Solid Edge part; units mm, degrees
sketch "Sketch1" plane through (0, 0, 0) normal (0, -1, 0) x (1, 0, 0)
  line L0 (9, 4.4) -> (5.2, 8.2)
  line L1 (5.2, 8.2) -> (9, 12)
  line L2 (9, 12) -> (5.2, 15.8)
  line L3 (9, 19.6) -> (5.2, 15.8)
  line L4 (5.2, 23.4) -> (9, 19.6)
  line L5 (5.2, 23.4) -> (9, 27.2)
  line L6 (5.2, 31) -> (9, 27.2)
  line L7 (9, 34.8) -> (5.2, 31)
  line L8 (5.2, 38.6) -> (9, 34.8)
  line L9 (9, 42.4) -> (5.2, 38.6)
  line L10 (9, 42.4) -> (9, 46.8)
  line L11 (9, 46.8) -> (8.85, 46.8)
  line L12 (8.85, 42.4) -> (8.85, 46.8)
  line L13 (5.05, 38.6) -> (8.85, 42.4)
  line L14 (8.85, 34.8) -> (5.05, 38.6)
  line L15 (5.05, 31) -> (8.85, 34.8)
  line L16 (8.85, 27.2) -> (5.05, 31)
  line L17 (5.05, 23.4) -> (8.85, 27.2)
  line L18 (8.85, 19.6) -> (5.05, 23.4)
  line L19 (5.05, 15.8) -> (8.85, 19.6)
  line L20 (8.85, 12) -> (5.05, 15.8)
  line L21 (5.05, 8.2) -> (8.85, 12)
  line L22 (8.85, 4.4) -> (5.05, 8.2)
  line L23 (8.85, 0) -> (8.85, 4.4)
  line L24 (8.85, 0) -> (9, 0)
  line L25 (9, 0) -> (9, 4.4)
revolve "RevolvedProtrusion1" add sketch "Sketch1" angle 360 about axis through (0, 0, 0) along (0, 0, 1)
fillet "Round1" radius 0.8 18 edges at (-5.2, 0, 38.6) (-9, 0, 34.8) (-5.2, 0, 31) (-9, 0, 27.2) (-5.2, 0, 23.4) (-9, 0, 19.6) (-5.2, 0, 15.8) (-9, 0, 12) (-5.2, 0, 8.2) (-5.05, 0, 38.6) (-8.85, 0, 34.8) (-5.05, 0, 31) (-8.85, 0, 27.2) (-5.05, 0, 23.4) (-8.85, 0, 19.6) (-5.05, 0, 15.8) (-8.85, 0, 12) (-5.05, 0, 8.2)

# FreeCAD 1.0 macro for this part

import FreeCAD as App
import Part
import Sketcher

V = App.Vector
Q = App.Units.Quantity


def edges_at(feature, points):
    """Names of the edges that pass closest to the given points."""
    edges = feature.Shape.Edges
    near = lambda p: min(range(len(edges)), key=lambda i: edges[i].distToShape(Part.Vertex(*p))[0])
    return sorted({f"Edge{near(p) + 1}" for p in points})

doc = App.newDocument("Part")
body = doc.addObject("PartDesign::Body", "Body")

# Sketch on XZ plane
sketch1 = body.newObject("Sketcher::SketchObject", "Sketch")
sketch1.AttachmentSupport = (doc.getObject("XZ_Plane"), [""])
sketch1.MapMode = "FlatFace"
sketch1.addGeometry(Part.LineSegment(V(9, 0, 0), V(9, 4.4, 0)), False)
sketch1.addGeometry(Part.LineSegment(V(9, 4.4, 0), V(5.2, 8.2, 0)), False)
sketch1.addGeometry(Part.LineSegment(V(5.2, 8.2, 0), V(9, 12, 0)), False)
sketch1.addGeometry(Part.LineSegment(V(9, 12, 0), V(5.2, 15.8, 0)), False)
sketch1.addGeometry(Part.LineSegment(V(5.2, 15.8, 0), V(9, 19.6, 0)), False)
sketch1.addGeometry(Part.LineSegment(V(9, 19.6, 0), V(5.2, 23.4, 0)), False)
sketch1.addGeometry(Part.LineSegment(V(5.2, 23.4, 0), V(9, 27.2, 0)), False)
sketch1.addGeometry(Part.LineSegment(V(9, 27.2, 0), V(5.2, 31, 0)), False)
sketch1.addGeometry(Part.LineSegment(V(5.2, 31, 0), V(9, 34.8, 0)), False)
sketch1.addGeometry(Part.LineSegment(V(9, 34.8, 0), V(5.2, 38.6, 0)), False)
sketch1.addGeometry(Part.LineSegment(V(5.2, 38.6, 0), V(9, 42.4, 0)), False)
sketch1.addGeometry(Part.LineSegment(V(9, 42.4, 0), V(9, 46.8, 0)), False)
sketch1.addGeometry(Part.LineSegment(V(9, 46.8, 0), V(8.85, 46.8, 0)), False)
sketch1.addGeometry(Part.LineSegment(V(8.85, 46.8, 0), V(8.85, 42.4, 0)), False)
sketch1.addGeometry(Part.LineSegment(V(8.85, 42.4, 0), V(5.05, 38.6, 0)), False)
sketch1.addGeometry(Part.LineSegment(V(5.05, 38.6, 0), V(8.85, 34.8, 0)), False)
sketch1.addGeometry(Part.LineSegment(V(8.85, 34.8, 0), V(5.05, 31, 0)), False)
sketch1.addGeometry(Part.LineSegment(V(5.05, 31, 0), V(8.85, 27.2, 0)), False)
sketch1.addGeometry(Part.LineSegment(V(8.85, 27.2, 0), V(5.05, 23.4, 0)), False)
sketch1.addGeometry(Part.LineSegment(V(5.05, 23.4, 0), V(8.85, 19.6, 0)), False)
sketch1.addGeometry(Part.LineSegment(V(8.85, 19.6, 0), V(5.05, 15.8, 0)), False)
sketch1.addGeometry(Part.LineSegment(V(5.05, 15.8, 0), V(8.85, 12, 0)), False)
sketch1.addGeometry(Part.LineSegment(V(8.85, 12, 0), V(5.05, 8.2, 0)), False)
sketch1.addGeometry(Part.LineSegment(V(5.05, 8.2, 0), V(8.85, 4.4, 0)), False)
sketch1.addGeometry(Part.LineSegment(V(8.85, 4.4, 0), V(8.85, 0, 0)), False)
sketch1.addGeometry(Part.LineSegment(V(8.85, 0, 0), V(9, 0, 0)), False)
sketch1.addConstraint(Sketcher.Constraint("Coincident", 0, 2, 1, 1))
sketch1.addConstraint(Sketcher.Constraint("Coincident", 1, 2, 2, 1))
sketch1.addConstraint(Sketcher.Constraint("Coincident", 2, 2, 3, 1))
sketch1.addConstraint(Sketcher.Constraint("Coincident", 3, 2, 4, 1))
sketch1.addConstraint(Sketcher.Constraint("Coincident", 4, 2, 5, 1))
sketch1.addConstraint(Sketcher.Constraint("Coincident", 5, 2, 6, 1))
sketch1.addConstraint(Sketcher.Constraint("Coincident", 6, 2, 7, 1))
sketch1.addConstraint(Sketcher.Constraint("Coincident", 7, 2, 8, 1))
sketch1.addConstraint(Sketcher.Constraint("Coincident", 8, 2, 9, 1))
sketch1.addConstraint(Sketcher.Constraint("Coincident", 9, 2, 10, 1))
sketch1.addConstraint(Sketcher.Constraint("Coincident", 10, 2, 11, 1))
sketch1.addConstraint(Sketcher.Constraint("Coincident", 11, 2, 12, 1))
sketch1.addConstraint(Sketcher.Constraint("Coincident", 12, 2, 13, 1))
sketch1.addConstraint(Sketcher.Constraint("Coincident", 13, 2, 14, 1))
sketch1.addConstraint(Sketcher.Constraint("Coincident", 14, 2, 15, 1))
sketch1.addConstraint(Sketcher.Constraint("Coincident", 15, 2, 16, 1))
sketch1.addConstraint(Sketcher.Constraint("Coincident", 16, 2, 17, 1))
sketch1.addConstraint(Sketcher.Constraint("Coincident", 17, 2, 18, 1))
sketch1.addConstraint(Sketcher.Constraint("Coincident", 18, 2, 19, 1))
sketch1.addConstraint(Sketcher.Constraint("Coincident", 19, 2, 20, 1))
sketch1.addConstraint(Sketcher.Constraint("Coincident", 20, 2, 21, 1))
sketch1.addConstraint(Sketcher.Constraint("Coincident", 21, 2, 22, 1))
sketch1.addConstraint(Sketcher.Constraint("Coincident", 22, 2, 23, 1))
sketch1.addConstraint(Sketcher.Constraint("Coincident", 23, 2, 24, 1))
sketch1.addConstraint(Sketcher.Constraint("Coincident", 24, 2, 25, 1))
sketch1.addConstraint(Sketcher.Constraint("Coincident", 25, 2, 0, 1))
sketch1.addConstraint(Sketcher.Constraint("Vertical", 0))
sketch1.addConstraint(Sketcher.Constraint("Vertical", 11))
sketch1.addConstraint(Sketcher.Constraint("Horizontal", 12))
sketch1.addConstraint(Sketcher.Constraint("Vertical", 13))
sketch1.addConstraint(Sketcher.Constraint("Vertical", 24))
sketch1.addConstraint(Sketcher.Constraint("Horizontal", 25))
sketch1.addConstraint(Sketcher.Constraint("PointOnObject", 24, 2, -1))
sketch1.addConstraint(Sketcher.Constraint("Perpendicular", 1, 2))
sketch1.addConstraint(Sketcher.Constraint("Perpendicular", 2, 3))
sketch1.addConstraint(Sketcher.Constraint("Perpendicular", 3, 4))
sketch1.addConstraint(Sketcher.Constraint("Perpendicular", 4, 5))
sketch1.addConstraint(Sketcher.Constraint("Perpendicular", 5, 6))
sketch1.addConstraint(Sketcher.Constraint("Perpendicular", 6, 7))
sketch1.addConstraint(Sketcher.Constraint("Perpendicular", 7, 8))
sketch1.addConstraint(Sketcher.Constraint("Perpendicular", 8, 9))
sketch1.addConstraint(Sketcher.Constraint("Perpendicular", 9, 10))
sketch1.addConstraint(Sketcher.Constraint("Parallel", 10, 14))
sketch1.addConstraint(Sketcher.Constraint("Perpendicular", 14, 15))
sketch1.addConstraint(Sketcher.Constraint("Perpendicular", 15, 16))
sketch1.addConstraint(Sketcher.Constraint("Perpendicular", 16, 17))
sketch1.addConstraint(Sketcher.Constraint("Perpendicular", 17, 18))
sketch1.addConstraint(Sketcher.Constraint("Perpendicular", 18, 19))
sketch1.addConstraint(Sketcher.Constraint("Perpendicular", 19, 20))
sketch1.addConstraint(Sketcher.Constraint("Perpendicular", 20, 21))
sketch1.addConstraint(Sketcher.Constraint("Perpendicular", 21, 22))
sketch1.addConstraint(Sketcher.Constraint("Perpendicular", 22, 23))
sketch1.addConstraint(Sketcher.Constraint("Horizontal", 10, 2, 13, 2))
sketch1.addConstraint(Sketcher.Constraint("Horizontal", 9, 2, 14, 2))
sketch1.addConstraint(Sketcher.Constraint("Horizontal", 8, 2, 15, 2))
sketch1.addConstraint(Sketcher.Constraint("Horizontal", 7, 2, 16, 2))
sketch1.addConstraint(Sketcher.Constraint("Horizontal", 6, 2, 17, 2))
sketch1.addConstraint(Sketcher.Constraint("Horizontal", 5, 2, 18, 2))
sketch1.addConstraint(Sketcher.Constraint("Horizontal", 4, 2, 19, 2))
sketch1.addConstraint(Sketcher.Constraint("Horizontal", 3, 2, 20, 2))
sketch1.addConstraint(Sketcher.Constraint("Horizontal", 2, 2, 21, 2))
sketch1.addConstraint(Sketcher.Constraint("Horizontal", 1, 2, 22, 2))
sketch1.addConstraint(Sketcher.Constraint("Horizontal", 0, 2, 23, 2))
sketch1.addConstraint(Sketcher.Constraint("Vertical", 0, 2, 2, 2))
sketch1.addConstraint(Sketcher.Constraint("Vertical", 1, 2, 3, 2))
sketch1.addConstraint(Sketcher.Constraint("Vertical", 2, 2, 4, 2))
sketch1.addConstraint(Sketcher.Constraint("Vertical", 3, 2, 5, 2))
sketch1.addConstraint(Sketcher.Constraint("Vertical", 4, 2, 6, 2))
sketch1.addConstraint(Sketcher.Constraint("Vertical", 5, 2, 7, 2))
sketch1.addConstraint(Sketcher.Constraint("Vertical", 6, 2, 8, 2))
sketch1.addConstraint(Sketcher.Constraint("Vertical", 7, 2, 9, 2))
sketch1.addConstraint(Sketcher.Constraint("Vertical", 8, 2, 10, 2))
sketch1.addConstraint(Sketcher.Constraint("Equal", 0, 11))
sketch1.addConstraint(Sketcher.Constraint("Equal", 1, 2))
sketch1.addConstraint(Sketcher.Constraint("DistanceY", 0, 1, 0, 2, Q("4.4 mm")))
sketch1.addConstraint(Sketcher.Constraint("DistanceX", -1, 1, 0, 2, Q("9 mm")))
sketch1.addConstraint(Sketcher.Constraint("DistanceY", -1, 1, 2, 2, Q("12 mm")))
sketch1.addConstraint(Sketcher.Constraint("DistanceX", 12, 2, 12, 1, Q("0.15 mm")))
revolution = body.newObject("PartDesign::Revolution", "Revolution")
revolution.Profile = sketch1
revolution.ReferenceAxis = (sketch1, ["V_Axis"])
revolution.Angle = 360
doc.recompute()

fillet = body.newObject("PartDesign::Fillet", "Fillet")
fillet.Base = (revolution, edges_at(revolution, [
    (-5.2, 0, 38.6),
    (-9, 0, 34.8),
    (-5.2, 0, 31),
    (-9, 0, 27.2),
    (-5.2, 0, 23.4),
    (-9, 0, 19.6),
    (-5.2, 0, 15.8),
    (-9, 0, 12),
    (-5.2, 0, 8.2),
    (-5.05, 0, 38.6),
    (-8.85, 0, 34.8),
    (-5.05, 0, 31),
    (-8.85, 0, 27.2),
    (-5.05, 0, 23.4),
    (-8.85, 0, 19.6),
    (-5.05, 0, 15.8),
    (-8.85, 0, 12),
    (-5.05, 0, 8.2),
]))
fillet.Radius = 0.8

doc.recompute()
